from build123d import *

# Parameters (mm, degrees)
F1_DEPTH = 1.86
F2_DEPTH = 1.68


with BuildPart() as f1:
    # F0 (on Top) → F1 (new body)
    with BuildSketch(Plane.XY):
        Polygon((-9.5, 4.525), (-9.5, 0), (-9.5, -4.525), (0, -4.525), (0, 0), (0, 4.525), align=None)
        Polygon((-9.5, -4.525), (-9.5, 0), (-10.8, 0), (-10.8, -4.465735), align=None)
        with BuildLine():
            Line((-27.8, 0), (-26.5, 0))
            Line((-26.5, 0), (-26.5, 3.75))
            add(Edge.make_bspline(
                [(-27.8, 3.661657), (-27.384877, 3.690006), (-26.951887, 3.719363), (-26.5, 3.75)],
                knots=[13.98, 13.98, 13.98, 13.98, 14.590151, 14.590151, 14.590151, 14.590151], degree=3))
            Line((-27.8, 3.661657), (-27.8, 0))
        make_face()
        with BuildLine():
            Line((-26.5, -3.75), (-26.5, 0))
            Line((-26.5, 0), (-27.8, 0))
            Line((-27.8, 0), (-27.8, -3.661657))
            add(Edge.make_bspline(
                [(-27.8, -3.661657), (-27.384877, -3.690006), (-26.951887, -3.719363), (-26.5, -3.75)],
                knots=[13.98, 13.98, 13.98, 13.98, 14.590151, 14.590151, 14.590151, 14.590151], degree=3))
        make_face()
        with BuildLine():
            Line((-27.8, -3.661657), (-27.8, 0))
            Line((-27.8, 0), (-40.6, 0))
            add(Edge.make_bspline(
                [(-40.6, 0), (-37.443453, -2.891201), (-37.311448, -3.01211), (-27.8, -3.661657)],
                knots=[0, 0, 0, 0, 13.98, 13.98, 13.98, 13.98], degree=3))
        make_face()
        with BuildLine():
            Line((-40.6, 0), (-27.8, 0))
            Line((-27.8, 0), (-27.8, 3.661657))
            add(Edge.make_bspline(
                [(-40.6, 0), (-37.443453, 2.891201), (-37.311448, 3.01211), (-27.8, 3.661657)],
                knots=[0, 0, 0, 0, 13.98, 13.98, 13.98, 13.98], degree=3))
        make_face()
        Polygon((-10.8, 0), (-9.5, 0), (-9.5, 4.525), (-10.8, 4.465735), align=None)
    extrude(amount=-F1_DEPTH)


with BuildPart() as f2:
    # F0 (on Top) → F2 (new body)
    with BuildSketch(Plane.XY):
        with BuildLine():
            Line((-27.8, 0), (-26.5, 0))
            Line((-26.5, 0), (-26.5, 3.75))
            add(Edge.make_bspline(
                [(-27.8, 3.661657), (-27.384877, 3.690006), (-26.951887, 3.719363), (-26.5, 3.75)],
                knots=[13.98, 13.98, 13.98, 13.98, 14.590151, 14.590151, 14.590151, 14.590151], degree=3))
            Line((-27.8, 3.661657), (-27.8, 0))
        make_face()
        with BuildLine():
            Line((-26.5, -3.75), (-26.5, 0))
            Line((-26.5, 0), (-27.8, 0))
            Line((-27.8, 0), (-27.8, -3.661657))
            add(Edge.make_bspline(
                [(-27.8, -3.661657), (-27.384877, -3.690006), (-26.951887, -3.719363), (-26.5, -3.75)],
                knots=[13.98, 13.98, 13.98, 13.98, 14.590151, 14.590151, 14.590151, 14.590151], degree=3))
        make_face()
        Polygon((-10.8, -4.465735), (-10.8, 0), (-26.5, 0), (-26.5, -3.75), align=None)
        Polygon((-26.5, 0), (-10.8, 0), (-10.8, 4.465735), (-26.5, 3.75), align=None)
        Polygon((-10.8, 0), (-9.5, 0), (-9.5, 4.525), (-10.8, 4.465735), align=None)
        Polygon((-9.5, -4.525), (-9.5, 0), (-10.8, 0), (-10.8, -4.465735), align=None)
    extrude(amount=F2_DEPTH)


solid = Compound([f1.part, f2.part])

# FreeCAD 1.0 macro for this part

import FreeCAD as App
import Part
import Sketcher

V = App.Vector


def add_polygon(sketch, points):
    """Adds a closed chain of lines whose ends are joined by coincident constraints."""
    first, n = sketch.GeometryCount, len(points)
    for a, b in zip(points, points[1:] + points[:1]):
        sketch.addGeometry(Part.LineSegment(App.Vector(*a, 0), App.Vector(*b, 0)), False)
    for i in range(n):
        sketch.addConstraint(Sketcher.Constraint("Coincident", first + i, 2, first + (i + 1) % n, 1))

doc = App.newDocument("Part")
body = doc.addObject("PartDesign::Body", "Body")
body.AllowCompound = True

sketch1 = body.newObject("Sketcher::SketchObject", "Sketch")
sketch1.AttachmentSupport = (doc.getObject("XY_Plane"), [""])
sketch1.MapMode = "FlatFace"
add_polygon(sketch1, [(-10.8, -4.465735), (-9.5, -4.525), (0, -4.525), (0, 4.525), (-9.5, 4.525), (-10.8, 4.465735)])
sketch1.addGeometry(Part.BSplineCurve([V(-27.8, 3.661657, 0), V(-27.384877, 3.690006, 0), V(-26.951887, 3.719363, 0), V(-26.5, 3.75, 0)], [4, 4], [13.98, 14.590151], False, 3, [1, 1, 1, 1], False), False)
sketch1.addGeometry(Part.BSplineCurve([V(-40.6, 0, 0), V(-37.443453, 2.891201, 0), V(-37.311448, 3.01211, 0), V(-27.8, 3.661657, 0)], [4, 4], [0, 13.98], False, 3, [1, 1, 1, 1], False), False)
sketch1.addGeometry(Part.BSplineCurve([V(-40.6, 0, 0), V(-37.443453, -2.891201, 0), V(-37.311448, -3.01211, 0), V(-27.8, -3.661657, 0)], [4, 4], [0, 13.98], False, 3, [1, 1, 1, 1], False), False)
sketch1.addGeometry(Part.BSplineCurve([V(-27.8, -3.661657, 0), V(-27.384877, -3.690006, 0), V(-26.951887, -3.719363, 0), V(-26.5, -3.75, 0)], [4, 4], [13.98, 14.590151], False, 3, [1, 1, 1, 1], False), False)
sketch1.addGeometry(Part.LineSegment(V(-26.5, -3.75, 0), V(-26.5, 3.75, 0)), False)
sketch1.addConstraint([
    Sketcher.Constraint("Block", 6),
    Sketcher.Constraint("Block", 7),
    Sketcher.Constraint("Block", 8),
    Sketcher.Constraint("Block", 9),
    Sketcher.Constraint("Coincident", 9, 2, 10, 1),
    Sketcher.Constraint("Coincident", 10, 2, 6, 2),
    Sketcher.Constraint("Horizontal", 1),
    Sketcher.Constraint("Vertical", 2),
    Sketcher.Constraint("Horizontal", 3),
    Sketcher.Constraint("Vertical", 5),
    Sketcher.Constraint("Symmetric", 1, 2, 2, 2, -1, 1),
    Sketcher.Constraint("Vertical", 0, 2, 3, 2),
    Sketcher.Constraint("Equal", 0, 4),
    Sketcher.Constraint("DistanceX", 1, 1, 1, 2, 9.5),
    Sketcher.Constraint("DistanceY", 2, 1, 2, 2, 9.05),
    Sketcher.Constraint("DistanceX", 4, 2, -1, 1, 10.8),
    Sketcher.Constraint("DistanceY", 5, 2, 5, 1, 8.93147),
])
pad1 = body.newObject("PartDesign::Pad", "Pad")
pad1.Profile = sketch1
pad1.Length = 1.86
pad1.Reversed = True
body2 = doc.addObject("PartDesign::Body", "Body001")

sketch2 = body2.newObject("Sketcher::SketchObject", "Sketch001")
sketch2.AttachmentSupport = (doc.getObject("XY_Plane001"), [""])
sketch2.MapMode = "FlatFace"
sketch2.addGeometry([
    Part.BSplineCurve([V(-27.8, 3.661657, 0), V(-27.384877, 3.690006, 0), V(-26.951887, 3.719363, 0), V(-26.5, 3.75, 0)], [4, 4], [13.98, 14.590151], False, 3, [1, 1, 1, 1], False),
    Part.LineSegment(V(-27.8, 3.661657, 0), V(-27.8, -3.661657, 0)),
    Part.BSplineCurve([V(-27.8, -3.661657, 0), V(-27.384877, -3.690006, 0), V(-26.951887, -3.719363, 0), V(-26.5, -3.75, 0)], [4, 4], [13.98, 14.590151], False, 3, [1, 1, 1, 1], False),
    Part.LineSegment(V(-26.5, -3.75, 0), V(-10.8, -4.465735, 0)),
    Part.LineSegment(V(-10.8, -4.465735, 0), V(-9.5, -4.525, 0)),
    Part.LineSegment(V(-9.5, -4.525, 0), V(-9.5, 4.525, 0)),
    Part.LineSegment(V(-9.5, 4.525, 0), V(-10.8, 4.465735, 0)),
    Part.LineSegment(V(-10.8, 4.465735, 0), V(-26.5, 3.75, 0)),
], False)
sketch2.addConstraint([
    Sketcher.Constraint("Block", 0),
    Sketcher.Constraint("Block", 2),
    Sketcher.Constraint("Coincident", 0, 1, 1, 1),
    Sketcher.Constraint("Coincident", 1, 2, 2, 1),
    Sketcher.Constraint("Coincident", 2, 2, 3, 1),
    Sketcher.Constraint("Coincident", 3, 2, 4, 1),
    Sketcher.Constraint("Coincident", 4, 2, 5, 1),
    Sketcher.Constraint("Coincident", 5, 2, 6, 1),
    Sketcher.Constraint("Coincident", 6, 2, 7, 1),
    Sketcher.Constraint("Coincident", 7, 2, 0, 2),
    Sketcher.Constraint("Vertical", 5),
    Sketcher.Constraint("DistanceX", 1, 2, 3, 2, 17.0),
    Sketcher.Constraint("DistanceX", 1, 2, 6, 2, 17.0),
    Sketcher.Constraint("DistanceX", 7, 2, 5, 2, 17.0),
    Sketcher.Constraint("DistanceY", 5, 1, 5, 2, 9.05),
    Sketcher.Constraint("DistanceY", 4, 2, -1, 1, 4.525),
    Sketcher.Constraint("Distance", 4, 1.30135),
    Sketcher.Constraint("Distance", 6, 1.30135),
])
pad2 = body2.newObject("PartDesign::Pad", "Pad001")
pad2.Profile = sketch2
pad2.Length = 1.68

doc.recompute()
